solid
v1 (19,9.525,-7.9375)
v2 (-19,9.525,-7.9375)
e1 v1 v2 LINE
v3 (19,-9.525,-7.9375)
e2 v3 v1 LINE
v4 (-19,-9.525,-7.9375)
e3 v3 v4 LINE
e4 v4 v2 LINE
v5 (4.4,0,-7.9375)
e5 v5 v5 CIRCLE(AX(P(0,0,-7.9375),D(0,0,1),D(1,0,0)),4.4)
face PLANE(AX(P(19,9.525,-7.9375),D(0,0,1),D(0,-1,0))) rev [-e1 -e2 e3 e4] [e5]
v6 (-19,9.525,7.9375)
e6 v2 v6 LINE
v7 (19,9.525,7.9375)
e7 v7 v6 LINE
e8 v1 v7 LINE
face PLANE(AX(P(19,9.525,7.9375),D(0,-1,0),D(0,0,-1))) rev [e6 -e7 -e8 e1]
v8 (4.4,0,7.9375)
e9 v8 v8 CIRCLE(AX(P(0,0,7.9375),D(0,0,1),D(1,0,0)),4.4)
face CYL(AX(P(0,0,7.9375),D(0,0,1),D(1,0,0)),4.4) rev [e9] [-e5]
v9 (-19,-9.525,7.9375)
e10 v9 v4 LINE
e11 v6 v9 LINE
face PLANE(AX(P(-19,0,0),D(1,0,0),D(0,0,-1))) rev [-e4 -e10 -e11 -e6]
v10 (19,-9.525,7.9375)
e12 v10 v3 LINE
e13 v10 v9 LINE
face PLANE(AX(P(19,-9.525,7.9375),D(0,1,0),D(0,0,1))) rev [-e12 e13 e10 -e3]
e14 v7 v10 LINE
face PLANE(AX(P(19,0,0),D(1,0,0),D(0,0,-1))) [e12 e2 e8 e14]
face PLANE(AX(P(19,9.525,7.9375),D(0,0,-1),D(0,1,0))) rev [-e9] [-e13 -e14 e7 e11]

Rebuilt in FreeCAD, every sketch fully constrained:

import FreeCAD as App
import Part
import Sketcher
Q = App.Units.Quantity

doc = App.newDocument("Part")
body = doc.addObject("PartDesign::Body", "Body")

# Sketch on YZ plane
sketch1 = body.newObject("Sketcher::SketchObject", "Sketch")
sketch1.AttachmentSupport = (doc.getObject("YZ_Plane"), [""])
sketch1.MapMode = "FlatFace"
sketch1.addGeometry(Part.LineSegment(App.Vector(9.525, 7.9375, 0), App.Vector(-9.525, 7.9375, 0)), False)
sketch1.addGeometry(Part.LineSegment(App.Vector(-9.525, 7.9375, 0), App.Vector(-9.525, -7.9375, 0)), False)
sketch1.addGeometry(Part.LineSegment(App.Vector(-9.525, -7.9375, 0), App.Vector(9.525, -7.9375, 0)), False)
sketch1.addGeometry(Part.LineSegment(App.Vector(9.525, -7.9375, 0), App.Vector(9.525, 7.9375, 0)), False)
sketch1.addConstraint(Sketcher.Constraint("Coincident", 0, 2, 1, 1))
sketch1.addConstraint(Sketcher.Constraint("Coincident", 1, 2, 2, 1))
sketch1.addConstraint(Sketcher.Constraint("Coincident", 2, 2, 3, 1))
sketch1.addConstraint(Sketcher.Constraint("Coincident", 3, 2, 0, 1))
sketch1.addConstraint(Sketcher.Constraint("Horizontal", 0))
sketch1.addConstraint(Sketcher.Constraint("Vertical", 1))
sketch1.addConstraint(Sketcher.Constraint("Horizontal", 2))
sketch1.addConstraint(Sketcher.Constraint("Vertical", 3))
sketch1.addConstraint(Sketcher.Constraint("Symmetric", 0, 2, 2, 2, -1, 1))
sketch1.addConstraint(Sketcher.Constraint("DistanceX", 0, 2, 0, 1, Q("19.05 mm")))
sketch1.addConstraint(Sketcher.Constraint("DistanceY", 1, 2, 1, 1, Q("15.875 mm")))
pad1 = body.newObject("PartDesign::Pad", "Pad")
pad1.Profile = sketch1
pad1.Length = 38
pad1.Midplane = True

# Sketch on XY plane
sketch2 = body.newObject("Sketcher::SketchObject", "Sketch001")
sketch2.AttachmentSupport = (doc.getObject("XY_Plane"), [""])
sketch2.MapMode = "FlatFace"
sketch2.AttachmentOffset = App.Placement(App.Vector(0, 0, 7.9375), App.Rotation())
sketch2.addGeometry(Part.Circle(App.Vector(0, 0, 0), App.Vector(0, 0, 1), 4.4), False)
sketch2.addConstraint(Sketcher.Constraint("Coincident", 0, 3, -1, 1))
sketch2.addConstraint(Sketcher.Constraint("Diameter", 0, Q("8.8 mm")))
doc.recompute()
hole = body.newObject("PartDesign::Hole", "Hole")
hole.Profile = sketch2
hole.ThreadType = "None"
hole.Diameter = 8.8
hole.DepthType = "ThroughAll"

doc.recompute()
